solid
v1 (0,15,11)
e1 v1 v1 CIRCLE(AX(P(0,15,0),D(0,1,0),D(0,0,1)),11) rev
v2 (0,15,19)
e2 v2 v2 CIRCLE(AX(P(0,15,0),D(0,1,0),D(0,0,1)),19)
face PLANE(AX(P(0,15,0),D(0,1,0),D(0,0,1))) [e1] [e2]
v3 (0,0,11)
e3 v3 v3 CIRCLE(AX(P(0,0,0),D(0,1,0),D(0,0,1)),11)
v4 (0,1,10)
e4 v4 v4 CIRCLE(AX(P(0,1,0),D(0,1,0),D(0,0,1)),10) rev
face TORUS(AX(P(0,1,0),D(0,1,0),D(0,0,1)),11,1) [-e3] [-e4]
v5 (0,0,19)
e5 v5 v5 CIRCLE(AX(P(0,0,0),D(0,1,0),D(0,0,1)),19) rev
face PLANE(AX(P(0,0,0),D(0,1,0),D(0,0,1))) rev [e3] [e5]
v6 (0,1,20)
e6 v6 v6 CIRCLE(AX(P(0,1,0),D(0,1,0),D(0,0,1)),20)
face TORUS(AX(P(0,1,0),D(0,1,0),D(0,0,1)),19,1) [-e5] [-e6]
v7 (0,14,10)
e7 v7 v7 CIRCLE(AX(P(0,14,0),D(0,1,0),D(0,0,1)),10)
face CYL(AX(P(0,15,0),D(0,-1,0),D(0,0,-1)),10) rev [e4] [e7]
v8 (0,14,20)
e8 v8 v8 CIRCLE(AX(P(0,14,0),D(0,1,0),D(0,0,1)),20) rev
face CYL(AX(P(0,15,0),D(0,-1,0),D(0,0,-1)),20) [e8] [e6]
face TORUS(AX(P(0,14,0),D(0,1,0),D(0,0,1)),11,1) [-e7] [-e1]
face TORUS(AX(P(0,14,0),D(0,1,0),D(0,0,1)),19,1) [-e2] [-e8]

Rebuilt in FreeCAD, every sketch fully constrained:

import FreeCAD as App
import Part
import Sketcher
from FreeCAD import Vector


def edges_at(feature, points):
    """Names of the edges that pass closest to the given points."""
    edges = feature.Shape.Edges
    near = lambda p: min(range(len(edges)), key=lambda i: edges[i].distToShape(Part.Vertex(*p))[0])
    return sorted({f"Edge{near(p) + 1}" for p in points})

doc = App.newDocument("Part")
body = doc.addObject("PartDesign::Body", "Body")

sketch1 = body.newObject("Sketcher::SketchObject", "Sketch")
sketch1.AttachmentSupport = (doc.getObject("XZ_Plane"), [""])
sketch1.MapMode = "FlatFace"
sketch1.addGeometry(Part.Circle(Vector(0, 0, 0), Vector(0, 0, 1), 20), False)
sketch1.addGeometry(Part.Circle(Vector(0, 0, 0), Vector(0, 0, 1), 10), False)
sketch1.addConstraint(Sketcher.Constraint("Coincident", 0, 3, -1, 1))
sketch1.addConstraint(Sketcher.Constraint("Coincident", 1, 3, -1, 1))
sketch1.addConstraint(Sketcher.Constraint("Diameter", 0, 40.0))
sketch1.addConstraint(Sketcher.Constraint("Diameter", 1, 20.0))
pad1 = body.newObject("PartDesign::Pad", "Pad")
pad1.Profile = sketch1
pad1.Length = 15
pad1.Reversed = True
doc.recompute()

fillet = body.newObject("PartDesign::Fillet", "Fillet")
fillet.Base = (pad1, edges_at(pad1, [(-20, 15, 0)]))
fillet.Radius = 1
doc.recompute()

fillet2 = body.newObject("PartDesign::Fillet", "Fillet001")
fillet2.Base = (fillet, edges_at(fillet, [(-10, 15, 0)]))
fillet2.Radius = 1
doc.recompute()

fillet3 = body.newObject("PartDesign::Fillet", "Fillet002")
fillet3.Base = (fillet2, edges_at(fillet2, [(-20, 0, 0), (-10, 0, 0)]))
fillet3.Radius = 1

doc.recompute()
